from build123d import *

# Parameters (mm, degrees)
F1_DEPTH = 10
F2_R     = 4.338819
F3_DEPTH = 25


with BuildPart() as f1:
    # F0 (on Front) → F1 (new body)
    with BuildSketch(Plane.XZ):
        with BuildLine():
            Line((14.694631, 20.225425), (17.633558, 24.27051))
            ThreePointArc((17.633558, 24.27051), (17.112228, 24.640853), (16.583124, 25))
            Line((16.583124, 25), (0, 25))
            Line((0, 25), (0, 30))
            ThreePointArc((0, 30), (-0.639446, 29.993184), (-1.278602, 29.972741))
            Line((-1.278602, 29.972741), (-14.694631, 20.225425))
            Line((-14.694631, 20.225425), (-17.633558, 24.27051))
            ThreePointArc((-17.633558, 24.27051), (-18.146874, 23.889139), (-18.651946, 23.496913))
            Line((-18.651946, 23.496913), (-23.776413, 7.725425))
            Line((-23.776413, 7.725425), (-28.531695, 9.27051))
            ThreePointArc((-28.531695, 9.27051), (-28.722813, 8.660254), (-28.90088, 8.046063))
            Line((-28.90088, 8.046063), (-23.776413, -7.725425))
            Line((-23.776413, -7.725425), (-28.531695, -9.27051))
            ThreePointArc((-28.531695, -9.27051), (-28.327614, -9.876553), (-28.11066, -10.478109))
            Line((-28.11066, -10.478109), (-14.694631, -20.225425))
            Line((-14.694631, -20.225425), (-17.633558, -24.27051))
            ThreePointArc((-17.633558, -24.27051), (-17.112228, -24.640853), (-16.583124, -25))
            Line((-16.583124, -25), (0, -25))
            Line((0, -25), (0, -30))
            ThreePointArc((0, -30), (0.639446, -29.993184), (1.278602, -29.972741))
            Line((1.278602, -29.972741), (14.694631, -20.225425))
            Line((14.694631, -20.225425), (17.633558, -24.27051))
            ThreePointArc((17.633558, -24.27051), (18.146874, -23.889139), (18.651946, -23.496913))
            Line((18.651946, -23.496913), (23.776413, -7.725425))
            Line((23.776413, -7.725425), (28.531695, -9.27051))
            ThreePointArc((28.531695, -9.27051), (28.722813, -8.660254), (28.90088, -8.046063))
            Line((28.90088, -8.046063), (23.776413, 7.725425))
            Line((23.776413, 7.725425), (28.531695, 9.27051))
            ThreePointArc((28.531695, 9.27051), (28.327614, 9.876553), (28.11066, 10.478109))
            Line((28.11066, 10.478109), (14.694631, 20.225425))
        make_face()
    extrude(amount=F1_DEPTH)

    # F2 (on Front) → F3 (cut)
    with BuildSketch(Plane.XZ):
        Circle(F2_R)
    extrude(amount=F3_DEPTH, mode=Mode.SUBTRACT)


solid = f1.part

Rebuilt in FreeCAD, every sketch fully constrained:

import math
import FreeCAD as App
import Part
import Sketcher
from FreeCAD import Vector

doc = App.newDocument("Part")
body = doc.addObject("PartDesign::Body", "Body")

sketch1 = doc.addObject("Sketcher::SketchObject", "Sketch")
body.addObject(sketch1)
sketch1.AttachmentSupport = (doc.XZ_Plane, [""])
sketch1.MapMode = "FlatFace"
sketch1.addGeometry([
    Part.LineSegment(Vector(14.694631, 20.225425, 0), Vector(17.633558, 24.27051, 0)),
    Part.ArcOfCircle(Part.Circle(Vector(-0.001199, -0.001741, 0), Vector(0, 0, 1), 30.002113), math.radians(54.000102), math.radians(56.44262)),
    Part.LineSegment(Vector(16.583124, 25, 0), Vector(0, 25, 0)),
    Part.LineSegment(Vector(0, 25, 0), Vector(0, 30, 0)),
    Part.ArcOfCircle(Part.Circle(Vector(0.000045, -0.002598, 0), Vector(0, 0, 1), 30.002598), math.radians(90.000086), math.radians(92.442565)),
    Part.LineSegment(Vector(-1.278602, 29.972741, 0), Vector(-14.694631, 20.225425, 0)),
    Part.LineSegment(Vector(-14.694631, 20.225425, 0), Vector(-17.633558, 24.27051, 0)),
    Part.ArcOfCircle(Part.Circle(Vector(0.000831, -0.001085, 0), Vector(0, 0, 1), 30.001366), math.radians(126.000066), math.radians(128.442645)),
    Part.LineSegment(Vector(-18.651946, 23.496913, 0), Vector(-23.776413, 7.725425, 0)),
    Part.LineSegment(Vector(-23.776413, 7.725425, 0), Vector(-28.531695, 9.27051, 0)),
    Part.ArcOfCircle(Part.Circle(Vector(-0.000078, 0.000015, 0), Vector(0, 0, 1), 29.999921), math.radians(161.999982), math.radians(164.442679)),
    Part.LineSegment(Vector(-28.90088, 8.046063, 0), Vector(-23.776413, -7.725425, 0)),
    Part.LineSegment(Vector(-23.776413, -7.725425, 0), Vector(-28.531695, -9.27051, 0)),
    Part.ArcOfCircle(Part.Circle(Vector(-0.00274, -0.000955, 0), Vector(0, 0, 1), 29.997099), math.radians(-162.000116), math.radians(-159.557191)),
    Part.LineSegment(Vector(-28.11066, -10.478109, 0), Vector(-14.694631, -20.225425, 0)),
    Part.LineSegment(Vector(-14.694631, -20.225425, 0), Vector(-17.633558, -24.27051, 0)),
    Part.ArcOfCircle(Part.Circle(Vector(0.001199, 0.001741, 0), Vector(0, 0, 1), 30.002113), math.radians(-125.999898), math.radians(-123.55738)),
    Part.LineSegment(Vector(-16.583124, -25, 0), Vector(0, -25, 0)),
    Part.LineSegment(Vector(0, -25, 0), Vector(0, -30, 0)),
    Part.ArcOfCircle(Part.Circle(Vector(-0.000045, 0.002598, 0), Vector(0, 0, 1), 30.002598), math.radians(-89.999914), math.radians(-87.557435)),
    Part.LineSegment(Vector(1.278602, -29.972741, 0), Vector(14.694631, -20.225425, 0)),
    Part.LineSegment(Vector(14.694631, -20.225425, 0), Vector(17.633558, -24.27051, 0)),
    Part.ArcOfCircle(Part.Circle(Vector(-0.000831, 0.001085, 0), Vector(0, 0, 1), 30.001366), math.radians(-53.999934), math.radians(-51.557355)),
    Part.LineSegment(Vector(18.651946, -23.496913, 0), Vector(23.776413, -7.725425, 0)),
    Part.LineSegment(Vector(23.776413, -7.725425, 0), Vector(28.531695, -9.27051, 0)),
    Part.ArcOfCircle(Part.Circle(Vector(0.000078, -0.000015, 0), Vector(0, 0, 1), 29.999921), math.radians(-18.000018), math.radians(-15.557321)),
    Part.LineSegment(Vector(28.90088, -8.046063, 0), Vector(23.776413, 7.725425, 0)),
    Part.LineSegment(Vector(23.776413, 7.725425, 0), Vector(28.531695, 9.27051, 0)),
    Part.ArcOfCircle(Part.Circle(Vector(0.00274, 0.000955, 0), Vector(0, 0, 1), 29.997099), math.radians(17.999884), math.radians(20.442809)),
    Part.LineSegment(Vector(28.11066, 10.478109, 0), Vector(14.694631, 20.225425, 0)),
], False)
sketch1.addConstraint([
    Sketcher.Constraint("Coincident", 0, 2, 1, 1),
    Sketcher.Constraint("Coincident", 1, 2, 2, 1),
    Sketcher.Constraint("Coincident", 2, 2, 3, 1),
    Sketcher.Constraint("Coincident", 3, 2, 4, 1),
    Sketcher.Constraint("Coincident", 4, 2, 5, 1),
    Sketcher.Constraint("Coincident", 5, 2, 6, 1),
    Sketcher.Constraint("Coincident", 6, 2, 7, 1),
    Sketcher.Constraint("Coincident", 7, 2, 8, 1),
    Sketcher.Constraint("Coincident", 8, 2, 9, 1),
    Sketcher.Constraint("Coincident", 9, 2, 10, 1),
    Sketcher.Constraint("Coincident", 10, 2, 11, 1),
    Sketcher.Constraint("Coincident", 11, 2, 12, 1),
    Sketcher.Constraint("Coincident", 12, 2, 13, 1),
    Sketcher.Constraint("Coincident", 13, 2, 14, 1),
    Sketcher.Constraint("Coincident", 14, 2, 15, 1),
    Sketcher.Constraint("Coincident", 15, 2, 16, 1),
    Sketcher.Constraint("Coincident", 16, 2, 17, 1),
    Sketcher.Constraint("Coincident", 17, 2, 18, 1),
    Sketcher.Constraint("Coincident", 18, 2, 19, 1),
    Sketcher.Constraint("Coincident", 19, 2, 20, 1),
    Sketcher.Constraint("Coincident", 20, 2, 21, 1),
    Sketcher.Constraint("Coincident", 21, 2, 22, 1),
    Sketcher.Constraint("Coincident", 22, 2, 23, 1),
    Sketcher.Constraint("Coincident", 23, 2, 24, 1),
    Sketcher.Constraint("Coincident", 24, 2, 25, 1),
    Sketcher.Constraint("Coincident", 25, 2, 26, 1),
    Sketcher.Constraint("Coincident", 26, 2, 27, 1),
    Sketcher.Constraint("Coincident", 27, 2, 28, 1),
    Sketcher.Constraint("Coincident", 28, 2, 29, 1),
    Sketcher.Constraint("Coincident", 29, 2, 0, 1),
    Sketcher.Constraint("Horizontal", 2),
    Sketcher.Constraint("Vertical", 3),
    Sketcher.Constraint("Horizontal", 17),
    Sketcher.Constraint("Vertical", 18),
    Sketcher.Constraint("PointOnObject", 2, 2, -2),
    Sketcher.Constraint("PointOnObject", 17, 2, -2),
    Sketcher.Constraint("DistanceY", 3, 1, 3, 2, 5.0),
    Sketcher.Constraint("DistanceY", 18, 2, 18, 1, 5.0),
    Sketcher.Constraint("Distance", 0, 5.0),
    Sketcher.Constraint("Distance", 6, 5.0),
    Sketcher.Constraint("Distance", 9, 4.999999),
    Sketcher.Constraint("Distance", 12, 4.999999),
    Sketcher.Constraint("Distance", 15, 5.0),
    Sketcher.Constraint("Distance", 21, 5.0),
    Sketcher.Constraint("Distance", 24, 4.999999),
    Sketcher.Constraint("Distance", 27, 4.999999),
    Sketcher.Constraint("DistanceY", -1, 1, 1, 2, 25.0),
    Sketcher.Constraint("DistanceY", 16, 2, -1, 1, 25.0),
    Sketcher.Constraint("DistanceY", 9, 2, 6, 2, 15.0),
    Sketcher.Constraint("DistanceY", 15, 2, 12, 2, 15.0),
    Sketcher.Constraint("DistanceY", 21, 2, 24, 2, 15.0),
    Sketcher.Constraint("DistanceY", 27, 2, 0, 2, 15.0),
    Sketcher.Constraint("Radius", 4, 30.002598),
    Sketcher.Constraint("Radius", 13, 29.997099),
    Sketcher.Constraint("Radius", 19, 30.002598),
    Sketcher.Constraint("Radius", 28, 29.997099),
    Sketcher.Constraint("DistanceY", 8, 2, 5, 2, 12.5),
    Sketcher.Constraint("DistanceY", 14, 2, 11, 2, 12.5),
    Sketcher.Constraint("DistanceY", 20, 2, 23, 2, 12.5),
    Sketcher.Constraint("DistanceY", 26, 2, 29, 2, 12.5),
    Sketcher.Constraint("Radius", 10, 29.999921),
    Sketcher.Constraint("Radius", 25, 29.999921),
    Sketcher.Constraint("Radius", 1, 30.002113),
    Sketcher.Constraint("Radius", 7, 30.001366),
    Sketcher.Constraint("Radius", 16, 30.002113),
    Sketcher.Constraint("Radius", 22, 30.001366),
    Sketcher.Constraint("DistanceX", 1, 3, -1, 1, 0.001199),
    Sketcher.Constraint("DistanceX", -1, 1, 16, 3, 0.001199),
    Sketcher.Constraint("DistanceX", 4, 2, -1, 1, 1.278602),
    Sketcher.Constraint("DistanceX", -1, 1, 19, 2, 1.278602),
    Sketcher.Constraint("DistanceY", 7, 3, 10, 3, 0.0011),
    Sketcher.Constraint("DistanceY", 25, 3, 22, 3, 0.0011),
    Sketcher.Constraint("DistanceX", 5, 2, 22, 3, 14.6938),
    Sketcher.Constraint("DistanceY", 13, 2, 12, 2, 1.207599),
    Sketcher.Constraint("DistanceX", 13, 2, 15, 2, 10.477102),
    Sketcher.Constraint("DistanceX", 7, 3, 20, 2, 14.6938),
    Sketcher.Constraint("DistanceY", 27, 2, 28, 2, 1.207599),
    Sketcher.Constraint("DistanceX", 0, 2, 28, 2, 10.477102),
    Sketcher.Constraint("DistanceX", 2, 2, 2, 1, 16.583124),
    Sketcher.Constraint("DistanceX", 17, 1, 17, 2, 16.583124),
    Sketcher.Constraint("DistanceX", -1, 1, 7, 3, 0.000831),
    Sketcher.Constraint("DistanceX", 13, 3, -1, 1, 0.00274),
    Sketcher.Constraint("DistanceX", 22, 3, -1, 1, 0.000831),
    Sketcher.Constraint("DistanceX", -1, 1, 28, 3, 0.00274),
    Sketcher.Constraint("DistanceX", -1, 1, 0, 2, 17.633558),
    Sketcher.Constraint("DistanceY", -1, 1, 4, 2, 29.972741),
    Sketcher.Constraint("DistanceX", 6, 2, -1, 1, 17.633558),
    Sketcher.Constraint("DistanceY", -1, 1, 6, 2, 24.27051),
    Sketcher.Constraint("DistanceX", 10, 2, -1, 1, 28.90088),
    Sketcher.Constraint("DistanceY", 12, 2, -1, 1, 9.27051),
    Sketcher.Constraint("DistanceX", 14, 2, -1, 1, 14.694631),
    Sketcher.Constraint("DistanceY", 19, 2, -1, 1, 29.972741),
    Sketcher.Constraint("DistanceX", -1, 1, 21, 2, 17.633558),
    Sketcher.Constraint("DistanceY", 21, 2, -1, 1, 24.27051),
    Sketcher.Constraint("DistanceX", -1, 1, 25, 2, 28.90088),
    Sketcher.Constraint("DistanceX", -1, 1, 29, 2, 14.694631),
    Sketcher.Constraint("DistanceX", 10, 3, 7, 3, 0.000908),
    Sketcher.Constraint("DistanceX", 22, 3, 25, 3, 0.000908),
    Sketcher.Constraint("DistanceX", 7, 2, 6, 2, 1.018388),
    Sketcher.Constraint("DistanceX", 21, 2, 22, 2, 1.018388),
])
pad1 = doc.addObject("PartDesign::Pad", "Pad")
body.addObject(pad1)
pad1.Profile = sketch1
pad1.Length = 10

sketch2 = doc.addObject("Sketcher::SketchObject", "Sketch001")
body.addObject(sketch2)
sketch2.AttachmentSupport = (doc.XZ_Plane, [""])
sketch2.MapMode = "FlatFace"
sketch2.addGeometry(Part.Circle(Vector(0, 0, 0), Vector(0, 0, 1), 4.3), False)
sketch2.addConstraint([
    Sketcher.Constraint("Coincident", 0, 3, -1, 1),
    Sketcher.Constraint("Diameter", 0, 8.677638),
])
pocket1 = doc.addObject("PartDesign::Pocket", "Pocket")
body.addObject(pocket1)
pocket1.Profile = sketch2
pocket1.Length = 25
pocket1.Reversed = True

doc.recompute()
